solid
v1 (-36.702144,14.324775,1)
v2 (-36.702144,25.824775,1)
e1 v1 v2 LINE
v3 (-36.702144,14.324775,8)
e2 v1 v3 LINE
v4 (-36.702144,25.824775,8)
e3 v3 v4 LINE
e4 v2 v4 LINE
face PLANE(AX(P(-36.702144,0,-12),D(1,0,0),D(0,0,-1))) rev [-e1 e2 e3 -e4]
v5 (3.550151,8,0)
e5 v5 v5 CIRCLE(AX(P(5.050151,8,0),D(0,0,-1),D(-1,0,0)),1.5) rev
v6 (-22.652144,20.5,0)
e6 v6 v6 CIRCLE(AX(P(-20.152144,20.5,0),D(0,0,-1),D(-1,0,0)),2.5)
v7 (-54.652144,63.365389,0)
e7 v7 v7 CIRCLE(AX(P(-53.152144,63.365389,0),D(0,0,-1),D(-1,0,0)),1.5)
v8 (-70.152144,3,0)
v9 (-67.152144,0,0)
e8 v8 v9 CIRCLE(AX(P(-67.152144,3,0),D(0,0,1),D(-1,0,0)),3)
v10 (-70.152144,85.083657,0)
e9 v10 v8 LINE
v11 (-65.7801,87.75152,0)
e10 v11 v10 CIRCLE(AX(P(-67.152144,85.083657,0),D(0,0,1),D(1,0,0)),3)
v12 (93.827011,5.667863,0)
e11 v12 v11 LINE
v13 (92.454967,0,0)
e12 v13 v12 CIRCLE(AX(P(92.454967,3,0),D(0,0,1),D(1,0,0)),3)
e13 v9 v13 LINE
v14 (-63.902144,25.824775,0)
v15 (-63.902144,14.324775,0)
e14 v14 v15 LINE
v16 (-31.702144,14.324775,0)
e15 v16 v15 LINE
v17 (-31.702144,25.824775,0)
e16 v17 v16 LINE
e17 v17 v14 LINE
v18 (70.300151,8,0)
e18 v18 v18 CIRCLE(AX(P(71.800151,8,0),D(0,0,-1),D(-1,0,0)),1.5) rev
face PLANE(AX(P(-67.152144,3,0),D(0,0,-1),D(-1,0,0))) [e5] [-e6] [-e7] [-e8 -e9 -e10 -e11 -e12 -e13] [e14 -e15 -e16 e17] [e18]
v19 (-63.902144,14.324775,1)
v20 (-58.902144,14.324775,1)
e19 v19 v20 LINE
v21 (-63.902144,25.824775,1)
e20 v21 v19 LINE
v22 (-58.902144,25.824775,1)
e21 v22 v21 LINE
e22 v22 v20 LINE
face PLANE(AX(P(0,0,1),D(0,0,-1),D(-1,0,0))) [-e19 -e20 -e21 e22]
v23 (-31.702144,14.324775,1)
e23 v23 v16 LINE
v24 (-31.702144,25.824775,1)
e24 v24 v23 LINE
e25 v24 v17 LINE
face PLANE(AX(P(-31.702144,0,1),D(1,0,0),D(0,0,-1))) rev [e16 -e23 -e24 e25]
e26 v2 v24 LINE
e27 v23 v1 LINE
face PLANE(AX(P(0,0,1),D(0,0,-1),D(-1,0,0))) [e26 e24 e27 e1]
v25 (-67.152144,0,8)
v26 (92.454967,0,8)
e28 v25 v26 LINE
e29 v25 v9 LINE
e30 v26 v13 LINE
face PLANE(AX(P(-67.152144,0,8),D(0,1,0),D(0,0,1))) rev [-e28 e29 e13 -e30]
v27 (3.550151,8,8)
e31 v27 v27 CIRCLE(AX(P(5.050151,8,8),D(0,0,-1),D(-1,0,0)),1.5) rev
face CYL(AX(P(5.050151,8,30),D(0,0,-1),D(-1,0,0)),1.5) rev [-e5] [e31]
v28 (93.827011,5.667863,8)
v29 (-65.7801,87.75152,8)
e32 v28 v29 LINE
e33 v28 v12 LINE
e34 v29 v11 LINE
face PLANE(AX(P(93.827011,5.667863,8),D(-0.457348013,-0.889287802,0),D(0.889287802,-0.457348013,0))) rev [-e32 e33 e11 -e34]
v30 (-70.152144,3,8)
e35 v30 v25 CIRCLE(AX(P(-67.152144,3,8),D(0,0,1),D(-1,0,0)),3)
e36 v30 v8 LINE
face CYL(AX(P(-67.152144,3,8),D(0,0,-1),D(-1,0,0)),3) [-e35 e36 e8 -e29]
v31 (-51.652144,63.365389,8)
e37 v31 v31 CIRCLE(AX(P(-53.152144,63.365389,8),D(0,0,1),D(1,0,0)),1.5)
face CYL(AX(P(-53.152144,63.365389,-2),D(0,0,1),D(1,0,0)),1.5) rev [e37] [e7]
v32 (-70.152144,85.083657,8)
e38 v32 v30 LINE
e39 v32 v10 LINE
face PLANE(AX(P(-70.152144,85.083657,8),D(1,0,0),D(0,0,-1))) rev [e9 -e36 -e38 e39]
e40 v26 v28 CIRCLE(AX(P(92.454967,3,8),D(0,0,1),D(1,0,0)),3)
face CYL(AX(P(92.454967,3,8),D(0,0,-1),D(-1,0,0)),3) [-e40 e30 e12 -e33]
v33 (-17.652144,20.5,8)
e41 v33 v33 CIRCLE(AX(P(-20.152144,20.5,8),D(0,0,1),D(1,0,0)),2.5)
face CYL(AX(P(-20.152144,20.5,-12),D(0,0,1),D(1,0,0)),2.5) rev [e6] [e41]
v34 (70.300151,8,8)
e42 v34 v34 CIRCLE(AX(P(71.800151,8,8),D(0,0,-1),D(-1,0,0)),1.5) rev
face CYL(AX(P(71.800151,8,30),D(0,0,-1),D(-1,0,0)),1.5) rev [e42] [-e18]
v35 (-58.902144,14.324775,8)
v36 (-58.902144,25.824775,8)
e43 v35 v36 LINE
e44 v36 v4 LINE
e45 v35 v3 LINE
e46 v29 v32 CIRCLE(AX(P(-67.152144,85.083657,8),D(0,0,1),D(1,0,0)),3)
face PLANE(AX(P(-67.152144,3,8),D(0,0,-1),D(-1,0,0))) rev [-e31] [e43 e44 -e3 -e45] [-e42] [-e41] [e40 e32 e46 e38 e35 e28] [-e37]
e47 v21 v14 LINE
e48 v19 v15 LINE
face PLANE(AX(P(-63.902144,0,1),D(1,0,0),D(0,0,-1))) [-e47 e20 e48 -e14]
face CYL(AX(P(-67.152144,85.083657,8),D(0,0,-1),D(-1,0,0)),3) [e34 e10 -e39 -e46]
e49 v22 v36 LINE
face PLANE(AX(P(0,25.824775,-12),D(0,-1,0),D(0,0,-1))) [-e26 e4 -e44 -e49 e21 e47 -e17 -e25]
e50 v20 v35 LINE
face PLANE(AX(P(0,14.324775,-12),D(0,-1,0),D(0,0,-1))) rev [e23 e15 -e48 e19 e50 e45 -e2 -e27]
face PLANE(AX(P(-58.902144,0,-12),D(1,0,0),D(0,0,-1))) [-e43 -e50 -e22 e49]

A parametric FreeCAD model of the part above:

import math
import FreeCAD as App
import Part
import Sketcher
from FreeCAD import Vector
Q = App.Units.Quantity

doc = App.newDocument("Part")
params = doc.addObject("Spreadsheet::Sheet", "Params")
for row, (alias, value) in enumerate([
    ("sketch1_radius", "3 mm"),
    ("pad1_length", "8 mm"),
    ("sketch2_diameter", "3 mm"),
    ("sketch3_width", "22.2 mm"),
    ("sketch3_height", "11.5 mm"),
    ("pocket2_length", "20 mm"),
    ("sketch4_width", "5 mm"),
    ("sketch4_height", "11.5 mm"),
    ("pocket3_length", "1 mm"),
    ("sketch5_diameter", "3 mm"),
    ("pocket4_length", "10 mm"),
    ("sketch6_diameter", "5 mm"),
    ("pocket5_length", "20 mm"),
], start=1):
    params.set(f"A{row}", alias)
    params.set(f"B{row}", "=" + value)
    params.setAlias(f"B{row}", alias)

body = doc.addObject("PartDesign::Body", "Body")

# Sketch on XY plane
sketch1 = body.newObject("Sketcher::SketchObject", "Sketch")
sketch1.AttachmentSupport = (doc.getObject("XY_Plane"), [""])
sketch1.MapMode = "FlatFace"
sketch1.addGeometry([
    Part.LineSegment(Vector(-67.2, 0, 0), Vector(92.5, 0, 0)),  # 0
    Part.ArcOfCircle(Part.Circle(Vector(92.5, 3, 0), Vector(0, 0, 1), 3), math.radians(-90), math.radians(63)),  # 1
    Part.LineSegment(Vector(93.8, 5.7, 0), Vector(-65.8, 87.8, 0)),  # 2
    Part.ArcOfCircle(Part.Circle(Vector(-67.2, 85.1, 0), Vector(0, 0, 1), 3), math.radians(63), math.radians(180)),  # 3
    Part.LineSegment(Vector(-70.2, 85.1, 0), Vector(-70.2, 3, 0)),  # 4
    Part.ArcOfCircle(Part.Circle(Vector(-67.2, 3, 0), Vector(0, 0, 1), 3), math.radians(180), math.radians(270)),  # 5
], False)
sketch1.addConstraint([
    Sketcher.Constraint("Tangent", 0, 2, 1, 1),
    Sketcher.Constraint("Tangent", 1, 2, 2, 1),
    Sketcher.Constraint("Tangent", 2, 2, 3, 1),
    Sketcher.Constraint("Tangent", 3, 2, 4, 1),
    Sketcher.Constraint("Tangent", 4, 2, 5, 1),
    Sketcher.Constraint("Tangent", 5, 2, 0, 1),
    Sketcher.Constraint("Horizontal", 0),
    Sketcher.Constraint("Vertical", 4),
    Sketcher.Constraint("Equal", 1, 3),
    Sketcher.Constraint("Equal", 3, 5),
    Sketcher.Constraint("PointOnObject", 0, 2, -1),
    Sketcher.Constraint("Radius", 1, Q("3 mm")),
    Sketcher.Constraint("DistanceX", 0, 1, 0, 2, Q("159.60711 mm")),
    Sketcher.Constraint("DistanceX", 2, 2, -1, 1, Q("65.7801 mm")),
    Sketcher.Constraint("DistanceY", 4, 2, 4, 1, Q("82.083657 mm")),
])
sketch1.setExpression("Constraints[11]", "Params.sketch1_radius")
pad1 = body.newObject("PartDesign::Pad", "Pad")
pad1.Profile = sketch1
pad1.setExpression("Length", "Params.pad1_length")

# Sketch on XY plane
sketch2 = body.newObject("Sketcher::SketchObject", "Sketch001")
sketch2.AttachmentSupport = (doc.getObject("XY_Plane"), [""])
sketch2.MapMode = "FlatFace"
sketch2.addGeometry([
    Part.Circle(Vector(71.8, 8, 0), Vector(0, 0, 1), 1.5),
    Part.Circle(Vector(5.1, 8, 0), Vector(0, 0, 1), 1.5),
], False)
sketch2.addConstraint([
    Sketcher.Constraint("Equal", 0, 1),
    Sketcher.Constraint("Horizontal", 0, 3, 1, 3),
    Sketcher.Constraint("Diameter", 0, Q("3 mm")),
    Sketcher.Constraint("DistanceY", -1, 1, 0, 3, Q("8 mm")),
    Sketcher.Constraint("DistanceX", 1, 3, 0, 3, Q("66.75 mm")),
    Sketcher.Constraint("DistanceX", -1, 1, 0, 3, Q("71.800151 mm")),
])
sketch2.setExpression("Constraints[2]", "Params.sketch2_diameter")
pocket1 = body.newObject("PartDesign::Pocket", "Pocket")
pocket1.Profile = sketch2
pocket1.Type = "ThroughAll"
pocket1.Midplane = True

# Sketch on XY plane
sketch3 = body.newObject("Sketcher::SketchObject", "Sketch002")
sketch3.AttachmentSupport = (doc.getObject("XY_Plane"), [""])
sketch3.MapMode = "FlatFace"
sketch3.AttachmentOffset = App.Placement(Vector(0, 0, 8), App.Rotation())
sketch3.addGeometry([
    Part.LineSegment(Vector(-37, 14, 0), Vector(-37, 26, 0)),
    Part.LineSegment(Vector(-37, 26, 0), Vector(-59, 26, 0)),
    Part.LineSegment(Vector(-59, 26, 0), Vector(-59, 14, 0)),
    Part.LineSegment(Vector(-59, 14, 0), Vector(-37, 14, 0)),
], False)
sketch3.addConstraint([
    Sketcher.Constraint("Coincident", 0, 2, 1, 1),
    Sketcher.Constraint("Coincident", 1, 2, 2, 1),
    Sketcher.Constraint("Coincident", 2, 2, 3, 1),
    Sketcher.Constraint("Coincident", 3, 2, 0, 1),
    Sketcher.Constraint("Vertical", 0),
    Sketcher.Constraint("Horizontal", 1),
    Sketcher.Constraint("Vertical", 2),
    Sketcher.Constraint("Horizontal", 3),
    Sketcher.Constraint("DistanceX", 1, 2, 1, 1, Q("22.2 mm")),
    Sketcher.Constraint("DistanceY", 0, 1, 0, 2, Q("11.5 mm")),
    Sketcher.Constraint("DistanceX", 0, 2, -1, 1, Q("36.702144 mm")),
    Sketcher.Constraint("DistanceY", -1, 1, 0, 2, Q("25.824775 mm")),
])
sketch3.setExpression("Constraints[8]", "Params.sketch3_width")
sketch3.setExpression("Constraints[9]", "Params.sketch3_height")
pocket2 = body.newObject("PartDesign::Pocket", "Pocket001")
pocket2.Profile = sketch3
pocket2.setExpression("Length", "Params.pocket2_length")

# Sketch on XY plane
sketch4 = body.newObject("Sketcher::SketchObject", "Sketch003")
sketch4.AttachmentSupport = (doc.getObject("XY_Plane"), [""])
sketch4.MapMode = "FlatFace"
sketch4.addGeometry([
    Part.LineSegment(Vector(-59, 26, 0), Vector(-59, 14, 0)),  # 0
    Part.LineSegment(Vector(-59, 14, 0), Vector(-64, 14, 0)),  # 1
    Part.LineSegment(Vector(-64, 14, 0), Vector(-64, 26, 0)),  # 2
    Part.LineSegment(Vector(-64, 26, 0), Vector(-59, 26, 0)),  # 3
    Part.LineSegment(Vector(-32, 26, 0), Vector(-32, 14, 0)),  # 4
    Part.LineSegment(Vector(-32, 14, 0), Vector(-37, 14, 0)),  # 5
    Part.LineSegment(Vector(-37, 14, 0), Vector(-37, 26, 0)),  # 6
    Part.LineSegment(Vector(-37, 26, 0), Vector(-32, 26, 0)),  # 7
], False)
sketch4.addConstraint([
    Sketcher.Constraint("Coincident", 0, 2, 1, 1),
    Sketcher.Constraint("Coincident", 1, 2, 2, 1),
    Sketcher.Constraint("Coincident", 2, 2, 3, 1),
    Sketcher.Constraint("Coincident", 3, 2, 0, 1),
    Sketcher.Constraint("Coincident", 4, 2, 5, 1),
    Sketcher.Constraint("Coincident", 5, 2, 6, 1),
    Sketcher.Constraint("Coincident", 6, 2, 7, 1),
    Sketcher.Constraint("Coincident", 7, 2, 4, 1),
    Sketcher.Constraint("Vertical", 0),
    Sketcher.Constraint("Horizontal", 1),
    Sketcher.Constraint("Vertical", 2),
    Sketcher.Constraint("Horizontal", 3),
    Sketcher.Constraint("Vertical", 4),
    Sketcher.Constraint("Horizontal", 5),
    Sketcher.Constraint("Vertical", 6),
    Sketcher.Constraint("Horizontal", 7),
    Sketcher.Constraint("Horizontal", 1, 2, 4, 2),
    Sketcher.Constraint("Horizontal", 3, 2, 6, 2),
    Sketcher.Constraint("Equal", 3, 5),
    Sketcher.Constraint("DistanceX", 1, 2, 1, 1, Q("5 mm")),
    Sketcher.Constraint("DistanceY", 0, 2, 0, 1, Q("11.5 mm")),
    Sketcher.Constraint("DistanceX", 0, 2, 4, 2, Q("27.2 mm")),
    Sketcher.Constraint("DistanceX", 0, 2, -1, 1, Q("58.902144 mm")),
    Sketcher.Constraint("DistanceY", -1, 1, 0, 2, Q("14.324775 mm")),
])
sketch4.setExpression("Constraints[19]", "Params.sketch4_width")
sketch4.setExpression("Constraints[20]", "Params.sketch4_height")
pocket3 = body.newObject("PartDesign::Pocket", "Pocket002")
pocket3.Profile = sketch4
pocket3.setExpression("Length", "Params.pocket3_length")
pocket3.Reversed = True

# Sketch on XY plane
sketch5 = body.newObject("Sketcher::SketchObject", "Sketch004")
sketch5.AttachmentSupport = (doc.getObject("XY_Plane"), [""])
sketch5.MapMode = "FlatFace"
sketch5.AttachmentOffset = App.Placement(Vector(0, 0, 8), App.Rotation())
sketch5.addGeometry(Part.Circle(Vector(-53.2, 63.4, 0), Vector(0, 0, 1), 1.5), False)
sketch5.addConstraint([
    Sketcher.Constraint("Diameter", 0, Q("3 mm")),
    Sketcher.Constraint("DistanceY", -1, 1, 0, 3, Q("63.365389 mm")),
    Sketcher.Constraint("DistanceX", 0, 3, -1, 1, Q("53.152144 mm")),
])
sketch5.setExpression("Constraints[0]", "Params.sketch5_diameter")
pocket4 = body.newObject("PartDesign::Pocket", "Pocket003")
pocket4.Profile = sketch5
pocket4.setExpression("Length", "Params.pocket4_length")

# Sketch on XY plane
sketch6 = body.newObject("Sketcher::SketchObject", "Sketch005")
sketch6.AttachmentSupport = (doc.getObject("XY_Plane"), [""])
sketch6.MapMode = "FlatFace"
sketch6.AttachmentOffset = App.Placement(Vector(0, 0, 8), App.Rotation())
sketch6.addGeometry(Part.Circle(Vector(-20.2, 20.5, 0), Vector(0, 0, 1), 2.5), False)
sketch6.addConstraint([
    Sketcher.Constraint("Diameter", 0, Q("5 mm")),
    Sketcher.Constraint("DistanceY", -1, 1, 0, 3, Q("20.5 mm")),
    Sketcher.Constraint("DistanceX", 0, 3, -1, 1, Q("20.152144 mm")),
])
sketch6.setExpression("Constraints[0]", "Params.sketch6_diameter")
pocket5 = body.newObject("PartDesign::Pocket", "Pocket004")
pocket5.Profile = sketch6
pocket5.setExpression("Length", "Params.pocket5_length")

doc.recompute()
